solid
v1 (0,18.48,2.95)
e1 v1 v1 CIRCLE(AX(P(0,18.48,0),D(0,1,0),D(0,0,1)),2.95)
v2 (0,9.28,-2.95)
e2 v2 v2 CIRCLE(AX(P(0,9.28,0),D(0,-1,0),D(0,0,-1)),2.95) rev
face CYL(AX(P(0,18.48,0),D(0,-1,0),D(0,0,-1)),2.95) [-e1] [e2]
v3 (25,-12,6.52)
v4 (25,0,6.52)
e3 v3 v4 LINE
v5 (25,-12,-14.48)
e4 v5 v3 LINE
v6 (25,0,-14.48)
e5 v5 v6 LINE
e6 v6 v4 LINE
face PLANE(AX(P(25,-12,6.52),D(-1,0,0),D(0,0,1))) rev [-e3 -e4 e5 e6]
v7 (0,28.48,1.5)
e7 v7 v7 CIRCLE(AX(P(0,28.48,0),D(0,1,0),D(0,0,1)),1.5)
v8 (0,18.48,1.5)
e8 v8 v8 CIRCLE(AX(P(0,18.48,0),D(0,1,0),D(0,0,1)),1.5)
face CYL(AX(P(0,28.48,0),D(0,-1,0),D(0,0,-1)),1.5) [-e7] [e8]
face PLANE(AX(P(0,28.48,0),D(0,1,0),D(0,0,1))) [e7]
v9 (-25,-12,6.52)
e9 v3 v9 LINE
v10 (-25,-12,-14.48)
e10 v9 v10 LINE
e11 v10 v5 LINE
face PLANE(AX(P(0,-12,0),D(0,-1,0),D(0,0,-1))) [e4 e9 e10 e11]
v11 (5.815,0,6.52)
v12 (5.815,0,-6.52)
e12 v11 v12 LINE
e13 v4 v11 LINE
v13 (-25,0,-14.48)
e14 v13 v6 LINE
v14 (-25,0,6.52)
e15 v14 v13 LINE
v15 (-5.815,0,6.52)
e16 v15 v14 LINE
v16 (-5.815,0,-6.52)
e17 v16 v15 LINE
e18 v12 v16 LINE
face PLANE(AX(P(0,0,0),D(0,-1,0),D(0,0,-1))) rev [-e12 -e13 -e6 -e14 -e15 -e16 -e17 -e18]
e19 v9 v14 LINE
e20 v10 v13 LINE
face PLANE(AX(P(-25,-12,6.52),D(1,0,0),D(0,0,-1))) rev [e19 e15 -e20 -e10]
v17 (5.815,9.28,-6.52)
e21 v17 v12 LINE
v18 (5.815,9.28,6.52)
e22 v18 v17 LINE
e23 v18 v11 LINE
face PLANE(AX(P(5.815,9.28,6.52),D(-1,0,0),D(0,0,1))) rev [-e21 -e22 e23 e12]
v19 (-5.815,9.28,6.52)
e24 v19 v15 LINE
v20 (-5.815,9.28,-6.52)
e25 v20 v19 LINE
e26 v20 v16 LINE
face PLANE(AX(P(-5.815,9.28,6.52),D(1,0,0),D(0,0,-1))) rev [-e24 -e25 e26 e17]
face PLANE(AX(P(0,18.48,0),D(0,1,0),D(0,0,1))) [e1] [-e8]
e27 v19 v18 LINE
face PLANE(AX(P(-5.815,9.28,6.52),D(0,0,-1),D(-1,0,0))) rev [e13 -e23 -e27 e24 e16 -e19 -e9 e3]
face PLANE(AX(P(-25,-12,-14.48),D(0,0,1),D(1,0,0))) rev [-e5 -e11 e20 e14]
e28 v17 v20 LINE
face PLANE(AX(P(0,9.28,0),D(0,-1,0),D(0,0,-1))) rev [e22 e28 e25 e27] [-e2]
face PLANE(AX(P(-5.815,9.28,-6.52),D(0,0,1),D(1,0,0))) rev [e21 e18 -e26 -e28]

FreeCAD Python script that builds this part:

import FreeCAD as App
import Part
import Sketcher
Q = App.Units.Quantity

doc = App.newDocument("Part")
body = doc.addObject("PartDesign::Body", "Body")

sketch1 = body.newObject("Sketcher::SketchObject", "Sketch")
sketch1.AttachmentSupport = (doc.getObject("XZ_Plane"), [""])
sketch1.MapMode = "FlatFace"
sketch1.addGeometry(Part.LineSegment(App.Vector(-6, -7, 0), App.Vector(-6, 7, 0)), False)
sketch1.addGeometry(Part.LineSegment(App.Vector(-6, 7, 0), App.Vector(6, 7, 0)), False)
sketch1.addGeometry(Part.LineSegment(App.Vector(6, 7, 0), App.Vector(6, -7, 0)), False)
sketch1.addGeometry(Part.LineSegment(App.Vector(6, -7, 0), App.Vector(-6, -7, 0)), False)
sketch1.addConstraint(Sketcher.Constraint("Coincident", 0, 2, 1, 1))
sketch1.addConstraint(Sketcher.Constraint("Coincident", 1, 2, 2, 1))
sketch1.addConstraint(Sketcher.Constraint("Coincident", 2, 2, 3, 1))
sketch1.addConstraint(Sketcher.Constraint("Coincident", 3, 2, 0, 1))
sketch1.addConstraint(Sketcher.Constraint("Vertical", 0))
sketch1.addConstraint(Sketcher.Constraint("Horizontal", 1))
sketch1.addConstraint(Sketcher.Constraint("Vertical", 2))
sketch1.addConstraint(Sketcher.Constraint("Horizontal", 3))
sketch1.addConstraint(Sketcher.Constraint("Symmetric", 0, 2, 2, 2, -1, 1))
sketch1.addConstraint(Sketcher.Constraint("DistanceX", 1, 1, 1, 2, Q("11.63 mm")))
sketch1.addConstraint(Sketcher.Constraint("DistanceY", 0, 1, 0, 2, Q("13.04 mm")))
pad1 = body.newObject("PartDesign::Pad", "Pad")
pad1.Profile = sketch1
pad1.Length = 9.28
pad1.Reversed = True

sketch2 = body.newObject("Sketcher::SketchObject", "Sketch001")
sketch2.AttachmentSupport = (doc.getObject("XZ_Plane"), [""])
sketch2.MapMode = "FlatFace"
sketch2.addGeometry(Part.LineSegment(App.Vector(-25, 7, 0), App.Vector(-25, -14, 0)), False)
sketch2.addGeometry(Part.LineSegment(App.Vector(-25, -14, 0), App.Vector(25, -14, 0)), False)
sketch2.addGeometry(Part.LineSegment(App.Vector(25, -14, 0), App.Vector(25, 7, 0)), False)
sketch2.addGeometry(Part.LineSegment(App.Vector(25, 7, 0), App.Vector(-25, 7, 0)), False)
sketch2.addConstraint(Sketcher.Constraint("Coincident", 0, 2, 1, 1))
sketch2.addConstraint(Sketcher.Constraint("Coincident", 1, 2, 2, 1))
sketch2.addConstraint(Sketcher.Constraint("Coincident", 2, 2, 3, 1))
sketch2.addConstraint(Sketcher.Constraint("Coincident", 3, 2, 0, 1))
sketch2.addConstraint(Sketcher.Constraint("Vertical", 0))
sketch2.addConstraint(Sketcher.Constraint("Horizontal", 1))
sketch2.addConstraint(Sketcher.Constraint("Vertical", 2))
sketch2.addConstraint(Sketcher.Constraint("Horizontal", 3))
sketch2.addConstraint(Sketcher.Constraint("DistanceX", 1, 1, 1, 2, Q("50 mm")))
sketch2.addConstraint(Sketcher.Constraint("DistanceY", 0, 2, 0, 1, Q("21 mm")))
sketch2.addConstraint(Sketcher.Constraint("DistanceX", 0, 2, -1, 1, Q("25 mm")))
sketch2.addConstraint(Sketcher.Constraint("DistanceY", 0, 2, -1, 1, Q("14.48 mm")))
pad2 = body.newObject("PartDesign::Pad", "Pad001")
pad2.Profile = sketch2
pad2.Length = 12

sketch3 = body.newObject("Sketcher::SketchObject", "Sketch002")
sketch3.AttachmentSupport = (doc.getObject("XZ_Plane"), [""])
sketch3.MapMode = "FlatFace"
sketch3.AttachmentOffset = App.Placement(App.Vector(0, 0, -9.28), App.Rotation())
sketch3.addGeometry(Part.Circle(App.Vector(0, 0, 0), App.Vector(0, 0, 1), 3), False)
sketch3.addConstraint(Sketcher.Constraint("Coincident", 0, 3, -1, 1))
sketch3.addConstraint(Sketcher.Constraint("Diameter", 0, Q("5.9 mm")))
pad3 = body.newObject("PartDesign::Pad", "Pad002")
pad3.Profile = sketch3
pad3.Length = 9.2
pad3.Reversed = True

sketch4 = body.newObject("Sketcher::SketchObject", "Sketch003")
sketch4.AttachmentSupport = (doc.getObject("XZ_Plane"), [""])
sketch4.MapMode = "FlatFace"
sketch4.AttachmentOffset = App.Placement(App.Vector(0, 0, -18.48), App.Rotation())
sketch4.addGeometry(Part.Circle(App.Vector(0, 0, 0), App.Vector(0, 0, 1), 1.5), False)
sketch4.addConstraint(Sketcher.Constraint("Coincident", 0, 3, -1, 1))
sketch4.addConstraint(Sketcher.Constraint("Diameter", 0, Q("3 mm")))
pad4 = body.newObject("PartDesign::Pad", "Pad003")
pad4.Profile = sketch4
pad4.Length = 10
pad4.Reversed = True

doc.recompute()
